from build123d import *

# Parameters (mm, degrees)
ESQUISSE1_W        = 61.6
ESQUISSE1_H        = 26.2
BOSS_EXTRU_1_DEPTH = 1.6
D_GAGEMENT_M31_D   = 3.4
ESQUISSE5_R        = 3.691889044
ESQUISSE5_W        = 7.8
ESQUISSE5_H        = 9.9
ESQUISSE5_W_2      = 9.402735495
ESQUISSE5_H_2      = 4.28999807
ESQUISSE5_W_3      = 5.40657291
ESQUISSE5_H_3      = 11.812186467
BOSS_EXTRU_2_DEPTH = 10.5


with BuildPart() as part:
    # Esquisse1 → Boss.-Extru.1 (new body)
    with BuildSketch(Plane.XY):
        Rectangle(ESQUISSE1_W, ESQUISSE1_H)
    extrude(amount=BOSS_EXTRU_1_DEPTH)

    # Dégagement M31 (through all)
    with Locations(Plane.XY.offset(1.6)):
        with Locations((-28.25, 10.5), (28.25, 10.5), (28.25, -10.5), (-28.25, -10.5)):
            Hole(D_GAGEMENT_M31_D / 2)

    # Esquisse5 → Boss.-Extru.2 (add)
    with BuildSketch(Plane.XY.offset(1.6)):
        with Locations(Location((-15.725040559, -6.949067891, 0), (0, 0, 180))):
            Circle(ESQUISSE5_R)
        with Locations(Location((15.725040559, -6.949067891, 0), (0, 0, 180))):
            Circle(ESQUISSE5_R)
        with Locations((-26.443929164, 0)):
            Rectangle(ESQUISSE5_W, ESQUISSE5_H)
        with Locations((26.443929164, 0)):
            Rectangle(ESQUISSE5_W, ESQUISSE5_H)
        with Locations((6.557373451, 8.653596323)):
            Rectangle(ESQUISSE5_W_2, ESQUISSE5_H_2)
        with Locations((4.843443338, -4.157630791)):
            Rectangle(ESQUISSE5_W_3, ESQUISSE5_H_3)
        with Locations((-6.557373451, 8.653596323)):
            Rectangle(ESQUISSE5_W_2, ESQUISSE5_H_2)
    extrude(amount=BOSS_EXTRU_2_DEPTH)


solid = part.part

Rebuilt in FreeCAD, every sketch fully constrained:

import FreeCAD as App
import Part
import Sketcher

V = App.Vector

doc = App.newDocument("Part")
body = doc.addObject("PartDesign::Body", "Body")

# Sketch on XY plane
sketch1 = body.newObject("Sketcher::SketchObject", "Sketch")
sketch1.AttachmentSupport = (doc.getObject("XY_Plane"), [""])
sketch1.MapMode = "FlatFace"
sketch1.addGeometry([
    Part.LineSegment(V(-30.8, 13.1, 0), V(-30.8, -13.1, 0)),
    Part.LineSegment(V(-30.8, -13.1, 0), V(30.8, -13.1, 0)),
    Part.LineSegment(V(30.8, -13.1, 0), V(30.8, 13.1, 0)),
    Part.LineSegment(V(30.8, 13.1, 0), V(-30.8, 13.1, 0)),
], False)
sketch1.addConstraint([
    Sketcher.Constraint("Coincident", 0, 2, 1, 1),
    Sketcher.Constraint("Coincident", 1, 2, 2, 1),
    Sketcher.Constraint("Coincident", 2, 2, 3, 1),
    Sketcher.Constraint("Coincident", 3, 2, 0, 1),
    Sketcher.Constraint("Vertical", 0),
    Sketcher.Constraint("Horizontal", 1),
    Sketcher.Constraint("Vertical", 2),
    Sketcher.Constraint("Horizontal", 3),
    Sketcher.Constraint("Symmetric", 0, 2, 2, 2, -1, 1),
    Sketcher.Constraint("DistanceX", 1, 1, 1, 2, 61.6),
    Sketcher.Constraint("DistanceY", 0, 2, 0, 1, 26.2),
])
pad1 = body.newObject("PartDesign::Pad", "Pad")
pad1.Profile = sketch1
pad1.Length = 1.6

# Sketch on XY plane
sketch2 = body.newObject("Sketcher::SketchObject", "Sketch001")
sketch2.AttachmentSupport = (doc.getObject("XY_Plane"), [""])
sketch2.MapMode = "FlatFace"
sketch2.AttachmentOffset = App.Placement(V(0, 0, 1.6), App.Rotation())
sketch2.addGeometry([
    Part.Circle(V(-28.25, 10.5, 0), V(0, 0, 1), 1.7),
    Part.Circle(V(28.25, 10.5, 0), V(0, 0, 1), 1.7),
    Part.Circle(V(28.25, -10.5, 0), V(0, 0, 1), 1.7),
    Part.Circle(V(-28.25, -10.5, 0), V(0, 0, 1), 1.7),
], False)
sketch2.addConstraint([
    Sketcher.Constraint("Equal", 0, 1),
    Sketcher.Constraint("Equal", 1, 2),
    Sketcher.Constraint("Equal", 2, 3),
    Sketcher.Constraint("Symmetric", 0, 3, 2, 3, -1, 1),
    Sketcher.Constraint("Symmetric", 1, 3, 3, 3, -1, 1),
    Sketcher.Constraint("Symmetric", 0, 3, 1, 3, -2),
    Sketcher.Constraint("Diameter", 0, 3.4),
    Sketcher.Constraint("DistanceY", 2, 3, 1, 3, 21.0),
    Sketcher.Constraint("DistanceX", 0, 3, 1, 3, 56.5),
])
doc.recompute()
hole = body.newObject("PartDesign::Hole", "Hole")
hole.Profile = sketch2
hole.ThreadType = "None"
hole.Diameter = 3.4
hole.DepthType = "ThroughAll"

# Sketch on XY plane
sketch3 = body.newObject("Sketcher::SketchObject", "Sketch002")
sketch3.AttachmentSupport = (doc.getObject("XY_Plane"), [""])
sketch3.MapMode = "FlatFace"
sketch3.AttachmentOffset = App.Placement(V(0, 0, 1.6), App.Rotation())
sketch3.addGeometry([
    Part.Circle(V(-15.725041, -6.949068, 0), V(0, 0, 1), 3.691889),  # 0
    Part.Circle(V(15.725041, -6.949068, 0), V(0, 0, 1), 3.691889),  # 1
    Part.LineSegment(V(-30.343929, 4.95, 0), V(-30.343929, -4.95, 0)),  # 2
    Part.LineSegment(V(-30.343929, -4.95, 0), V(-22.543929, -4.95, 0)),  # 3
    Part.LineSegment(V(-22.543929, -4.95, 0), V(-22.543929, 4.95, 0)),  # 4
    Part.LineSegment(V(-22.543929, 4.95, 0), V(-30.343929, 4.95, 0)),  # 5
    Part.LineSegment(V(22.543929, 4.95, 0), V(22.543929, -4.95, 0)),  # 6
    Part.LineSegment(V(22.543929, -4.95, 0), V(30.343929, -4.95, 0)),  # 7
    Part.LineSegment(V(30.343929, -4.95, 0), V(30.343929, 4.95, 0)),  # 8
    Part.LineSegment(V(30.343929, 4.95, 0), V(22.543929, 4.95, 0)),  # 9
    Part.LineSegment(V(1.856006, 10.798595, 0), V(1.856006, 6.508597, 0)),  # 10
    Part.LineSegment(V(1.856006, 6.508597, 0), V(11.258741, 6.508597, 0)),  # 11
    Part.LineSegment(V(11.258741, 6.508597, 0), V(11.258741, 10.798595, 0)),  # 12
    Part.LineSegment(V(11.258741, 10.798595, 0), V(1.856006, 10.798595, 0)),  # 13
    Part.LineSegment(V(2.140157, 1.748462, 0), V(2.140157, -10.063724, 0)),  # 14
    Part.LineSegment(V(2.140157, -10.063724, 0), V(7.54673, -10.063724, 0)),  # 15
    Part.LineSegment(V(7.54673, -10.063724, 0), V(7.54673, 1.748462, 0)),  # 16
    Part.LineSegment(V(7.54673, 1.748462, 0), V(2.140157, 1.748462, 0)),  # 17
    Part.LineSegment(V(-11.258741, 10.798595, 0), V(-11.258741, 6.508597, 0)),  # 18
    Part.LineSegment(V(-11.258741, 6.508597, 0), V(-1.856006, 6.508597, 0)),  # 19
    Part.LineSegment(V(-1.856006, 6.508597, 0), V(-1.856006, 10.798595, 0)),  # 20
    Part.LineSegment(V(-1.856006, 10.798595, 0), V(-11.258741, 10.798595, 0)),  # 21
], False)
sketch3.addConstraint([
    Sketcher.Constraint("Coincident", 2, 2, 3, 1),
    Sketcher.Constraint("Coincident", 3, 2, 4, 1),
    Sketcher.Constraint("Coincident", 4, 2, 5, 1),
    Sketcher.Constraint("Coincident", 5, 2, 2, 1),
    Sketcher.Constraint("Coincident", 6, 2, 7, 1),
    Sketcher.Constraint("Coincident", 7, 2, 8, 1),
    Sketcher.Constraint("Coincident", 8, 2, 9, 1),
    Sketcher.Constraint("Coincident", 9, 2, 6, 1),
    Sketcher.Constraint("Coincident", 10, 2, 11, 1),
    Sketcher.Constraint("Coincident", 11, 2, 12, 1),
    Sketcher.Constraint("Coincident", 12, 2, 13, 1),
    Sketcher.Constraint("Coincident", 13, 2, 10, 1),
    Sketcher.Constraint("Coincident", 14, 2, 15, 1),
    Sketcher.Constraint("Coincident", 15, 2, 16, 1),
    Sketcher.Constraint("Coincident", 16, 2, 17, 1),
    Sketcher.Constraint("Coincident", 17, 2, 14, 1),
    Sketcher.Constraint("Coincident", 18, 2, 19, 1),
    Sketcher.Constraint("Coincident", 19, 2, 20, 1),
    Sketcher.Constraint("Coincident", 20, 2, 21, 1),
    Sketcher.Constraint("Coincident", 21, 2, 18, 1),
    Sketcher.Constraint("Vertical", 2),
    Sketcher.Constraint("Horizontal", 3),
    Sketcher.Constraint("Vertical", 4),
    Sketcher.Constraint("Horizontal", 5),
    Sketcher.Constraint("Vertical", 6),
    Sketcher.Constraint("Horizontal", 7),
    Sketcher.Constraint("Vertical", 8),
    Sketcher.Constraint("Horizontal", 9),
    Sketcher.Constraint("Vertical", 10),
    Sketcher.Constraint("Horizontal", 11),
    Sketcher.Constraint("Vertical", 12),
    Sketcher.Constraint("Horizontal", 13),
    Sketcher.Constraint("Vertical", 14),
    Sketcher.Constraint("Horizontal", 15),
    Sketcher.Constraint("Vertical", 16),
    Sketcher.Constraint("Horizontal", 17),
    Sketcher.Constraint("Vertical", 18),
    Sketcher.Constraint("Horizontal", 19),
    Sketcher.Constraint("Vertical", 20),
    Sketcher.Constraint("Horizontal", 21),
    Sketcher.Constraint("Equal", 0, 1),
    Sketcher.Constraint("Symmetric", 4, 2, 6, 2, -1, 1),
    Sketcher.Constraint("Symmetric", 2, 2, 8, 2, -1, 1),
    Sketcher.Constraint("Symmetric", 0, 3, 1, 3, -2),
    Sketcher.Constraint("Symmetric", 11, 2, 18, 2, -2),
    Sketcher.Constraint("Symmetric", 13, 2, 20, 2, -2),
    Sketcher.Constraint("Horizontal", 3, 2, 6, 2),
    Sketcher.Constraint("DistanceX", 3, 1, 3, 2, 7.8),
    Sketcher.Constraint("DistanceY", 2, 2, 2, 1, 9.9),
    Sketcher.Constraint("DistanceY", 10, 2, 10, 1, 4.289998),
    Sketcher.Constraint("Diameter", 0, 7.383778),
    Sketcher.Constraint("DistanceX", 11, 2, 1, 3, 4.466299),
    Sketcher.Constraint("DistanceX", 15, 2, 6, 2, 14.997199),
    Sketcher.Constraint("DistanceX", 18, 2, 17, 2, 13.398898),
    Sketcher.Constraint("DistanceX", 11, 1, 11, 2, 9.402735),
    Sketcher.Constraint("DistanceX", 15, 1, 15, 2, 5.406573),
    Sketcher.Constraint("DistanceY", 14, 2, 14, 1, 11.812186),
    Sketcher.Constraint("DistanceX", 0, 3, -1, 1, 15.725041),
    Sketcher.Constraint("DistanceY", 14, 2, 10, 2, 16.572321),
    Sketcher.Constraint("DistanceY", 0, 3, -1, 1, 6.949068),
    Sketcher.Constraint("DistanceY", -1, 1, 10, 2, 6.508597),
])
pad2 = body.newObject("PartDesign::Pad", "Pad001")
pad2.Profile = sketch3
pad2.Length = 10.5

doc.recompute()
